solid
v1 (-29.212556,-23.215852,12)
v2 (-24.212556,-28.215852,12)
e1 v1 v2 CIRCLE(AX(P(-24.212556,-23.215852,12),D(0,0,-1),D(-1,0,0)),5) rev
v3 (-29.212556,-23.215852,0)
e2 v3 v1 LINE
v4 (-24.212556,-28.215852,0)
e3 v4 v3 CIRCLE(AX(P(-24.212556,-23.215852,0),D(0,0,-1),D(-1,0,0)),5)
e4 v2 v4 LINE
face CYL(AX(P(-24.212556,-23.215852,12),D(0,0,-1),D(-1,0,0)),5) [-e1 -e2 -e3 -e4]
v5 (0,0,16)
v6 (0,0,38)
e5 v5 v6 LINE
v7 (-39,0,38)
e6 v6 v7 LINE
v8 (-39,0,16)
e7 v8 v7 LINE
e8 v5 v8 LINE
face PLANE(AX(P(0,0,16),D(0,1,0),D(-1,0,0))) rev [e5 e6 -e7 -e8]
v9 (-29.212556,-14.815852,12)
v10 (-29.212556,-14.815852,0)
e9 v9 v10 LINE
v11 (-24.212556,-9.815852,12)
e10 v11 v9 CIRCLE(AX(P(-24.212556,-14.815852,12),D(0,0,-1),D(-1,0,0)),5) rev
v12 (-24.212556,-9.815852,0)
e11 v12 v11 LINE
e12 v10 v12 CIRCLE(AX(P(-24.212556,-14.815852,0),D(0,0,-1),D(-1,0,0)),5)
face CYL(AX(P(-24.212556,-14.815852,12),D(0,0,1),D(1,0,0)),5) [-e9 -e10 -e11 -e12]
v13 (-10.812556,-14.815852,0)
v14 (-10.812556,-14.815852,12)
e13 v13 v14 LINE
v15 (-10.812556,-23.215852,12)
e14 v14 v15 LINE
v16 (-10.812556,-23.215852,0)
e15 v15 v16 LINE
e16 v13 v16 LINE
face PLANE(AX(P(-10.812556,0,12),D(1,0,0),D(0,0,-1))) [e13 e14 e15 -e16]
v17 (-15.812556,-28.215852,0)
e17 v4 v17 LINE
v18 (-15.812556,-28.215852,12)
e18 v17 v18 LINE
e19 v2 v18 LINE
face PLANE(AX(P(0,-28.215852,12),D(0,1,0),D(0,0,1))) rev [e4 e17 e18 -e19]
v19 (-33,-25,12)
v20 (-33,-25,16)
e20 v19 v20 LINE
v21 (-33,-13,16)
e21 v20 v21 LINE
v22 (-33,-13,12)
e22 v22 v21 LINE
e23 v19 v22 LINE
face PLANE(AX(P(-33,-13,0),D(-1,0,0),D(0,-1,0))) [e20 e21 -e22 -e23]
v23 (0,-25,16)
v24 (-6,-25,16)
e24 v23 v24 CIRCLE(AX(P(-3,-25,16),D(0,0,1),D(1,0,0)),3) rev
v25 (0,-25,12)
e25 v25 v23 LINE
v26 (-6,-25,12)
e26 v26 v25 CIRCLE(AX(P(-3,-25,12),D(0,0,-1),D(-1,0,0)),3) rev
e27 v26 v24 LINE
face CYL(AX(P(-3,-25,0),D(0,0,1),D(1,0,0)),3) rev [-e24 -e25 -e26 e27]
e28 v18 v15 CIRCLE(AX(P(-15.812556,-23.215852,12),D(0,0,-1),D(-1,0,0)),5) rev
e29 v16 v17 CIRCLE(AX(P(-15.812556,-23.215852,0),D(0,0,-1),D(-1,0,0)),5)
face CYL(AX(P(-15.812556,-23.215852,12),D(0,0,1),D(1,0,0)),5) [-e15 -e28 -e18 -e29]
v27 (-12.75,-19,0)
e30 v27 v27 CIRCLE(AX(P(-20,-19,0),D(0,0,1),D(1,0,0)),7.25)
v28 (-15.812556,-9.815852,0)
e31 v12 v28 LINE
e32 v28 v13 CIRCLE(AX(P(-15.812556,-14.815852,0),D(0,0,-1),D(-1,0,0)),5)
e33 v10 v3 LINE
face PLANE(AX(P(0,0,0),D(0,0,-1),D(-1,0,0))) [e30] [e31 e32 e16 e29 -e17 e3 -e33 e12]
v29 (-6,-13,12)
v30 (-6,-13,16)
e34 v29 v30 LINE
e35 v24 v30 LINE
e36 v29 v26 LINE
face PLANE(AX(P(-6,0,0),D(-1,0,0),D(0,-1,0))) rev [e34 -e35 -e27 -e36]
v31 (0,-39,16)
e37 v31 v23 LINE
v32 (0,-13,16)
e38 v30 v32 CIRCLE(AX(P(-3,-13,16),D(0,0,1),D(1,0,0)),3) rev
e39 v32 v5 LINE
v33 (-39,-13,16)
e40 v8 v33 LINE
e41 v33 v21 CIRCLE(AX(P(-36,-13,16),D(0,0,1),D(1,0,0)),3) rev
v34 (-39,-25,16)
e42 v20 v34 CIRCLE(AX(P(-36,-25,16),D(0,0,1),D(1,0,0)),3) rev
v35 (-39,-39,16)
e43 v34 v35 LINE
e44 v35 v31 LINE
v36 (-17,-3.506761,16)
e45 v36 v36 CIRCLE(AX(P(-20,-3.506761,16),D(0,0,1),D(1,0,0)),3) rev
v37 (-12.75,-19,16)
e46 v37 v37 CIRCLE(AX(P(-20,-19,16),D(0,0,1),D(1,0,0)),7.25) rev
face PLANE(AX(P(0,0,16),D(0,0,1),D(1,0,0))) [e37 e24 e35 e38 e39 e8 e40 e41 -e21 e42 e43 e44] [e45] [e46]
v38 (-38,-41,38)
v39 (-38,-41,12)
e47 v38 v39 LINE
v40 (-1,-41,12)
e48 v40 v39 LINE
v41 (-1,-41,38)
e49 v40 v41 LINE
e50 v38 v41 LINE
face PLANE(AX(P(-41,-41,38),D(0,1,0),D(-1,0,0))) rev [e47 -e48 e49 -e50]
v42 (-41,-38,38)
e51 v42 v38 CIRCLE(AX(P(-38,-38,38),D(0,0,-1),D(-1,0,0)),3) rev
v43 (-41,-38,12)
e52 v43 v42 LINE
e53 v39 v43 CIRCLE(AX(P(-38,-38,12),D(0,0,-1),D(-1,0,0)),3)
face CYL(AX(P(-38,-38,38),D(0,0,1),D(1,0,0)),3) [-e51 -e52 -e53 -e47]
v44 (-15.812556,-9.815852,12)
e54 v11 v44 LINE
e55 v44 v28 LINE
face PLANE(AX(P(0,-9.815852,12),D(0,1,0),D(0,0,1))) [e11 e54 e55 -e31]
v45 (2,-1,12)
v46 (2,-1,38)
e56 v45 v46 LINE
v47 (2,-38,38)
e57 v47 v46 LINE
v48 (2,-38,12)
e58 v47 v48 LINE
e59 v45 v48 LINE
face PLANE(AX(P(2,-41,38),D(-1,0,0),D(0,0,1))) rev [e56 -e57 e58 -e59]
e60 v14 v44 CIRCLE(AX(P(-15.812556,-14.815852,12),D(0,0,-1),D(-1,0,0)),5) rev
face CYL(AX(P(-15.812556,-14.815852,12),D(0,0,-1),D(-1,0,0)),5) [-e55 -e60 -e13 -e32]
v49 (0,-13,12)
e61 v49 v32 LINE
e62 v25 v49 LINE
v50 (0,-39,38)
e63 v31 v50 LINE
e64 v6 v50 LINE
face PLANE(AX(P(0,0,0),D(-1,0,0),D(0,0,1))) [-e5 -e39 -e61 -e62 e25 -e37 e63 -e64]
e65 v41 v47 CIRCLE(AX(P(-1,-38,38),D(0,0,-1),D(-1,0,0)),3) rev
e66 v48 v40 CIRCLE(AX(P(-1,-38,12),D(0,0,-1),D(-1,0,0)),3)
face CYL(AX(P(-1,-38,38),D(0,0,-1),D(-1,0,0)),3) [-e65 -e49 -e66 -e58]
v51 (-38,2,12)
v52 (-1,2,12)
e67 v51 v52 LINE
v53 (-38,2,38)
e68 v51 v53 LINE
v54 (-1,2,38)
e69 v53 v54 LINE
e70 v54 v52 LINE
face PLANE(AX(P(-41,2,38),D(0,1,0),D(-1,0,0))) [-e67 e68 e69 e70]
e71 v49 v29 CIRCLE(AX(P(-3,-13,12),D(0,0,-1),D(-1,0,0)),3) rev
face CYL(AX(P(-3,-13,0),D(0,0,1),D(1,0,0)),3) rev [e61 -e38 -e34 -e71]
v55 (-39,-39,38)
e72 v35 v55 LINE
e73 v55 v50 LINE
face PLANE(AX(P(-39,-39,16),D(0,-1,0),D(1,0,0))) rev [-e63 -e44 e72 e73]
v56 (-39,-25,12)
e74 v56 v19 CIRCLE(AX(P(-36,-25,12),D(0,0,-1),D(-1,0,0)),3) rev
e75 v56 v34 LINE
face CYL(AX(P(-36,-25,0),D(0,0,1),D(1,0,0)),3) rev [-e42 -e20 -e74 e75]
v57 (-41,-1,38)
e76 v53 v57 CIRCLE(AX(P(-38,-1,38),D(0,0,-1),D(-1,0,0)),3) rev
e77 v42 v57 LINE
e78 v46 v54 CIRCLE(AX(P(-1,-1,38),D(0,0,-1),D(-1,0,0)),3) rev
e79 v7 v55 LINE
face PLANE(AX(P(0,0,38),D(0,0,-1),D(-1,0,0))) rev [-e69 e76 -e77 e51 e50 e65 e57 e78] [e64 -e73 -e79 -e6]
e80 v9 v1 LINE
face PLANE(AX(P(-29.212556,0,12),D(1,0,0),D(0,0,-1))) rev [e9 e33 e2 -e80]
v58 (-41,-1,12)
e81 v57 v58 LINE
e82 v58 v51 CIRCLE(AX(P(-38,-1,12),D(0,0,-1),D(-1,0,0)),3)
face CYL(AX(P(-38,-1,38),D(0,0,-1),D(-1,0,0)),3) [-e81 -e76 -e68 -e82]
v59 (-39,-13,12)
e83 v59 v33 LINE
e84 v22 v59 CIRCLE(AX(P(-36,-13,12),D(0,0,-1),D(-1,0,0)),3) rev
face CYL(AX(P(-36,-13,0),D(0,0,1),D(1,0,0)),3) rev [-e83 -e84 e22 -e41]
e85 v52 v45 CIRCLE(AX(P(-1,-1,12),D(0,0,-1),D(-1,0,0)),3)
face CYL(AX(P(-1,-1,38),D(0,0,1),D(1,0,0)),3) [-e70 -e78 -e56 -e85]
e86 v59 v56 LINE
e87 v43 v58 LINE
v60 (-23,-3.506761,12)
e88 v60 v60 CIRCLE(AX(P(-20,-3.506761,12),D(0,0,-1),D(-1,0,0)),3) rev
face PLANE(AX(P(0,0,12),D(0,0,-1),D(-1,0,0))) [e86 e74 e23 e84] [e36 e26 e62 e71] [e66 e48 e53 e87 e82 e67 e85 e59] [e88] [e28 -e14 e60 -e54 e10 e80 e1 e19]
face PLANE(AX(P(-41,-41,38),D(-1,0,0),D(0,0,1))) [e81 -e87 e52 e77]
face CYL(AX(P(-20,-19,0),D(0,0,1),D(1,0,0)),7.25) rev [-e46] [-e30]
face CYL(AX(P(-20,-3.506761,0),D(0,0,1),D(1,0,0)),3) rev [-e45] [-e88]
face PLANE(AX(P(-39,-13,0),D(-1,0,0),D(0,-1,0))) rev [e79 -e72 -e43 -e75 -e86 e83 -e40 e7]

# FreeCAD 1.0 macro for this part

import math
import FreeCAD as App
import Part
import Sketcher
Q = App.Units.Quantity


def edges_at(feature, points):
    """Names of the edges that pass closest to the given points."""
    edges = feature.Shape.Edges
    near = lambda p: min(range(len(edges)), key=lambda i: edges[i].distToShape(Part.Vertex(*p))[0])
    return sorted({f"Edge{near(p) + 1}" for p in points})

doc = App.newDocument("Part")
body = doc.addObject("PartDesign::Body", "Body")

# Sketch on XY plane
sketch1 = doc.addObject("Sketcher::SketchObject", "Sketch")
body.addObject(sketch1)
sketch1.AttachmentSupport = (doc.XY_Plane, [""])
sketch1.MapMode = "FlatFace"
sketch1.addGeometry(Part.LineSegment(App.Vector(-41, -41, 0), App.Vector(2, -41, 0)), False)
sketch1.addGeometry(Part.LineSegment(App.Vector(2, -41, 0), App.Vector(2, 2, 0)), False)
sketch1.addGeometry(Part.LineSegment(App.Vector(2, 2, 0), App.Vector(-41, 2, 0)), False)
sketch1.addGeometry(Part.LineSegment(App.Vector(-41, 2, 0), App.Vector(-41, -41, 0)), False)
sketch1.addConstraint(Sketcher.Constraint("Coincident", 0, 2, 1, 1))
sketch1.addConstraint(Sketcher.Constraint("Coincident", 1, 2, 2, 1))
sketch1.addConstraint(Sketcher.Constraint("Coincident", 2, 2, 3, 1))
sketch1.addConstraint(Sketcher.Constraint("Coincident", 3, 2, 0, 1))
sketch1.addConstraint(Sketcher.Constraint("Horizontal", 0))
sketch1.addConstraint(Sketcher.Constraint("Vertical", 1))
sketch1.addConstraint(Sketcher.Constraint("Horizontal", 2))
sketch1.addConstraint(Sketcher.Constraint("Vertical", 3))
sketch1.addConstraint(Sketcher.Constraint("Equal", 2, 1))
sketch1.addConstraint(Sketcher.Constraint("DistanceX", 0, 1, 0, 2, Q("43 mm")))
sketch1.addConstraint(Sketcher.Constraint("DistanceX", -1, 1, 0, 2, Q("2 mm")))
sketch1.addConstraint(Sketcher.Constraint("DistanceY", 0, 2, -1, 1, Q("41 mm")))
pad1 = doc.addObject("PartDesign::Pad", "Pad")
body.addObject(pad1)
pad1.Profile = sketch1
pad1.Length = 38

# Sketch on XY plane
sketch2 = doc.addObject("Sketcher::SketchObject", "Sketch001")
body.addObject(sketch2)
sketch2.AttachmentSupport = (doc.XY_Plane, [""])
sketch2.MapMode = "FlatFace"
sketch2.AttachmentOffset = App.Placement(App.Vector(0, 0, 38), App.Rotation())
sketch2.addGeometry(Part.Circle(App.Vector(-20, -3.506761, 0), App.Vector(0, 0, 1), 3), False)
sketch2.addGeometry(Part.Circle(App.Vector(-20, -19, 0), App.Vector(0, 0, 1), 7.25), False)
sketch2.addGeometry(Part.LineSegment(App.Vector(-6, -13, 0), App.Vector(-6, -25, 0)), False)
sketch2.addGeometry(Part.ArcOfCircle(Part.Circle(App.Vector(-3, -25, 0), App.Vector(0, 0, 1), 3), math.radians(180), math.radians(360)), False)
sketch2.addGeometry(Part.LineSegment(App.Vector(0, -25, 0), App.Vector(0, -13, 0)), False)
sketch2.addGeometry(Part.ArcOfCircle(Part.Circle(App.Vector(-3, -13, 0), App.Vector(0, 0, 1), 3), math.radians(0), math.radians(180)), False)
sketch2.addGeometry(Part.LineSegment(App.Vector(-33, -25, 0), App.Vector(-33, -13, 0)), False)
sketch2.addGeometry(Part.ArcOfCircle(Part.Circle(App.Vector(-36, -13, 0), App.Vector(0, 0, 1), 3), math.radians(0), math.radians(180)), False)
sketch2.addGeometry(Part.LineSegment(App.Vector(-39, -13, 0), App.Vector(-39, -25, 0)), False)
sketch2.addGeometry(Part.ArcOfCircle(Part.Circle(App.Vector(-36, -25, 0), App.Vector(0, 0, 1), 3), math.radians(180), math.radians(360)), False)
sketch2.addConstraint(Sketcher.Constraint("Tangent", 2, 2, 3, 1))
sketch2.addConstraint(Sketcher.Constraint("Tangent", 3, 2, 4, 1))
sketch2.addConstraint(Sketcher.Constraint("Tangent", 4, 2, 5, 1))
sketch2.addConstraint(Sketcher.Constraint("Tangent", 5, 2, 2, 1))
sketch2.addConstraint(Sketcher.Constraint("Tangent", 6, 2, 7, 1))
sketch2.addConstraint(Sketcher.Constraint("Tangent", 7, 2, 8, 1))
sketch2.addConstraint(Sketcher.Constraint("Tangent", 8, 2, 9, 1))
sketch2.addConstraint(Sketcher.Constraint("Tangent", 9, 2, 6, 1))
sketch2.addConstraint(Sketcher.Constraint("Vertical", 2))
sketch2.addConstraint(Sketcher.Constraint("Vertical", 4))
sketch2.addConstraint(Sketcher.Constraint("Vertical", 6))
sketch2.addConstraint(Sketcher.Constraint("Vertical", 8))
sketch2.addConstraint(Sketcher.Constraint("Equal", 0, 3))
sketch2.addConstraint(Sketcher.Constraint("Equal", 5, 7))
sketch2.addConstraint(Sketcher.Constraint("PointOnObject", 3, 2, -2))
sketch2.addConstraint(Sketcher.Constraint("Horizontal", 5, 3, 7, 3))
sketch2.addConstraint(Sketcher.Constraint("Horizontal", 3, 3, 9, 3))
sketch2.addConstraint(Sketcher.Constraint("Vertical", 0, 3, 1, 3))
sketch2.addConstraint(Sketcher.Constraint("Diameter", 0, Q("6 mm")))
sketch2.addConstraint(Sketcher.Constraint("Diameter", 1, Q("14.5 mm")))
sketch2.addConstraint(Sketcher.Constraint("DistanceY", 2, 2, 2, 1, Q("12 mm")))
sketch2.addConstraint(Sketcher.Constraint("DistanceX", 0, 3, -1, 1, Q("20 mm")))
sketch2.addConstraint(Sketcher.Constraint("DistanceY", 1, 3, -1, 1, Q("19 mm")))
sketch2.addConstraint(Sketcher.Constraint("DistanceY", 3, 3, -1, 1, Q("25 mm")))
sketch2.addConstraint(Sketcher.Constraint("DistanceX", 7, 3, -1, 1, Q("36 mm")))
sketch2.addConstraint(Sketcher.Constraint("DistanceY", 0, 3, -1, 1, Q("3.506761 mm")))
pocket1 = doc.addObject("PartDesign::Pocket", "Pocket")
body.addObject(pocket1)
pocket1.Profile = sketch2
pocket1.Length = 38

# Sketch on XY plane
sketch3 = doc.addObject("Sketcher::SketchObject", "Sketch002")
body.addObject(sketch3)
sketch3.AttachmentSupport = (doc.XY_Plane, [""])
sketch3.MapMode = "FlatFace"
sketch3.AttachmentOffset = App.Placement(App.Vector(0, 0, 38), App.Rotation())
sketch3.addGeometry(Part.LineSegment(App.Vector(-39, 0, 0), App.Vector(-39, -39, 0)), False)
sketch3.addGeometry(Part.LineSegment(App.Vector(-39, -39, 0), App.Vector(0, -39, 0)), False)
sketch3.addGeometry(Part.LineSegment(App.Vector(0, -39, 0), App.Vector(0, 0, 0)), False)
sketch3.addGeometry(Part.LineSegment(App.Vector(0, 0, 0), App.Vector(-39, 0, 0)), False)
sketch3.addConstraint(Sketcher.Constraint("Coincident", 0, 2, 1, 1))
sketch3.addConstraint(Sketcher.Constraint("Coincident", 1, 2, 2, 1))
sketch3.addConstraint(Sketcher.Constraint("Coincident", 2, 2, 3, 1))
sketch3.addConstraint(Sketcher.Constraint("Coincident", 3, 2, 0, 1))
sketch3.addConstraint(Sketcher.Constraint("Vertical", 0))
sketch3.addConstraint(Sketcher.Constraint("Horizontal", 1))
sketch3.addConstraint(Sketcher.Constraint("Vertical", 2))
sketch3.addConstraint(Sketcher.Constraint("Horizontal", 3))
sketch3.addConstraint(Sketcher.Constraint("Coincident", 2, 2, -1, 1))
sketch3.addConstraint(Sketcher.Constraint("Equal", 3, 0))
sketch3.addConstraint(Sketcher.Constraint("DistanceX", 1, 1, 1, 2, Q("39 mm")))
pocket2 = doc.addObject("PartDesign::Pocket", "Pocket001")
body.addObject(pocket2)
pocket2.Profile = sketch3
pocket2.Length = 22

# Sketch on XY plane
sketch4 = doc.addObject("Sketcher::SketchObject", "Sketch003")
body.addObject(sketch4)
sketch4.AttachmentSupport = (doc.XY_Plane, [""])
sketch4.MapMode = "FlatFace"
sketch4.AttachmentOffset = App.Placement(App.Vector(0, 0, 12), App.Rotation())
sketch4.addGeometry(Part.LineSegment(App.Vector(-41, -41, 0), App.Vector(-41, 2, 0)), False)
sketch4.addGeometry(Part.LineSegment(App.Vector(-41, 2, 0), App.Vector(2, 2, 0)), False)
sketch4.addGeometry(Part.LineSegment(App.Vector(2, 2, 0), App.Vector(2, -41, 0)), False)
sketch4.addGeometry(Part.LineSegment(App.Vector(2, -41, 0), App.Vector(-41, -41, 0)), False)
sketch4.addGeometry(Part.Circle(App.Vector(-20, -3.506761, 0), App.Vector(0, 0, 1), 3), False)
sketch4.addGeometry(Part.ArcOfCircle(Part.Circle(App.Vector(-36, -25, 0), App.Vector(0, 0, 1), 3), math.radians(180), math.radians(360)), False)
sketch4.addGeometry(Part.LineSegment(App.Vector(-33, -25, 0), App.Vector(-33, -13, 0)), False)
sketch4.addGeometry(Part.ArcOfCircle(Part.Circle(App.Vector(-36, -13, 0), App.Vector(0, 0, 1), 3), math.radians(0), math.radians(180)), False)
sketch4.addGeometry(Part.LineSegment(App.Vector(-39, -13, 0), App.Vector(-39, -25, 0)), False)
sketch4.addGeometry(Part.LineSegment(App.Vector(-10.812556, -9.815852, 0), App.Vector(-29.212556, -9.815852, 0)), False)
sketch4.addGeometry(Part.LineSegment(App.Vector(-29.212556, -9.815852, 0), App.Vector(-29.212556, -28.215852, 0)), False)
sketch4.addGeometry(Part.LineSegment(App.Vector(-29.212556, -28.215852, 0), App.Vector(-10.812556, -28.215852, 0)), False)
sketch4.addGeometry(Part.LineSegment(App.Vector(-10.812556, -28.215852, 0), App.Vector(-10.812556, -9.815852, 0)), False)
sketch4.addGeometry(Part.LineSegment(App.Vector(0, -25, 0), App.Vector(0, -13, 0)), False)
sketch4.addGeometry(Part.ArcOfCircle(Part.Circle(App.Vector(-3, -13, 0), App.Vector(0, 0, 1), 3), math.radians(0), math.radians(180)), False)
sketch4.addGeometry(Part.LineSegment(App.Vector(-6, -13, 0), App.Vector(-6, -25, 0)), False)
sketch4.addGeometry(Part.ArcOfCircle(Part.Circle(App.Vector(-3, -25, 0), App.Vector(0, 0, 1), 3), math.radians(180), math.radians(360)), False)
sketch4.addConstraint(Sketcher.Constraint("Coincident", 0, 2, 1, 1))
sketch4.addConstraint(Sketcher.Constraint("Coincident", 1, 2, 2, 1))
sketch4.addConstraint(Sketcher.Constraint("Coincident", 2, 2, 3, 1))
sketch4.addConstraint(Sketcher.Constraint("Coincident", 3, 2, 0, 1))
sketch4.addConstraint(Sketcher.Constraint("Tangent", 5, 2, 6, 1))
sketch4.addConstraint(Sketcher.Constraint("Tangent", 6, 2, 7, 1))
sketch4.addConstraint(Sketcher.Constraint("Tangent", 7, 2, 8, 1))
sketch4.addConstraint(Sketcher.Constraint("Tangent", 8, 2, 5, 1))
sketch4.addConstraint(Sketcher.Constraint("Coincident", 9, 2, 10, 1))
sketch4.addConstraint(Sketcher.Constraint("Coincident", 10, 2, 11, 1))
sketch4.addConstraint(Sketcher.Constraint("Coincident", 11, 2, 12, 1))
sketch4.addConstraint(Sketcher.Constraint("Coincident", 12, 2, 9, 1))
sketch4.addConstraint(Sketcher.Constraint("Tangent", 13, 2, 14, 1))
sketch4.addConstraint(Sketcher.Constraint("Tangent", 14, 2, 15, 1))
sketch4.addConstraint(Sketcher.Constraint("Tangent", 15, 2, 16, 1))
sketch4.addConstraint(Sketcher.Constraint("Tangent", 16, 2, 13, 1))
sketch4.addConstraint(Sketcher.Constraint("Vertical", 0))
sketch4.addConstraint(Sketcher.Constraint("Horizontal", 1))
sketch4.addConstraint(Sketcher.Constraint("Vertical", 2))
sketch4.addConstraint(Sketcher.Constraint("Horizontal", 3))
sketch4.addConstraint(Sketcher.Constraint("Vertical", 6))
sketch4.addConstraint(Sketcher.Constraint("Vertical", 8))
sketch4.addConstraint(Sketcher.Constraint("Horizontal", 9))
sketch4.addConstraint(Sketcher.Constraint("Vertical", 10))
sketch4.addConstraint(Sketcher.Constraint("Horizontal", 11))
sketch4.addConstraint(Sketcher.Constraint("Vertical", 12))
sketch4.addConstraint(Sketcher.Constraint("Vertical", 13))
sketch4.addConstraint(Sketcher.Constraint("Vertical", 15))
sketch4.addConstraint(Sketcher.Constraint("Equal", 4, 5))
sketch4.addConstraint(Sketcher.Constraint("Equal", 7, 14))
sketch4.addConstraint(Sketcher.Constraint("PointOnObject", 13, 2, -2))
sketch4.addConstraint(Sketcher.Constraint("Horizontal", 7, 3, 14, 3))
sketch4.addConstraint(Sketcher.Constraint("Horizontal", 5, 3, 16, 3))
sketch4.addConstraint(Sketcher.Constraint("Equal", 3, 0))
sketch4.addConstraint(Sketcher.Constraint("Equal", 11, 10))
sketch4.addConstraint(Sketcher.Constraint("Diameter", 4, Q("6 mm")))
sketch4.addConstraint(Sketcher.Constraint("DistanceX", 1, 1, 1, 2, Q("43 mm")))
sketch4.addConstraint(Sketcher.Constraint("DistanceY", 6, 1, 6, 2, Q("12 mm")))
sketch4.addConstraint(Sketcher.Constraint("DistanceX", 9, 2, 9, 1, Q("18.4 mm")))
sketch4.addConstraint(Sketcher.Constraint("DistanceX", 4, 3, -1, 1, Q("20 mm")))
sketch4.addConstraint(Sketcher.Constraint("DistanceX", 5, 3, -1, 1, Q("36 mm")))
sketch4.addConstraint(Sketcher.Constraint("DistanceY", 5, 3, -1, 1, Q("25 mm")))
sketch4.addConstraint(Sketcher.Constraint("DistanceX", 0, 2, -1, 1, Q("41 mm")))
sketch4.addConstraint(Sketcher.Constraint("DistanceY", -1, 1, 0, 2, Q("2 mm")))
sketch4.addConstraint(Sketcher.Constraint("DistanceY", 4, 3, -1, 1, Q("3.506761 mm")))
sketch4.addConstraint(Sketcher.Constraint("DistanceY", 9, 2, 4, 3, Q("6.309091 mm")))
sketch4.addConstraint(Sketcher.Constraint("DistanceX", 9, 2, -1, 1, Q("29.212556 mm")))
pocket3 = doc.addObject("PartDesign::Pocket", "Pocket002")
body.addObject(pocket3)
pocket3.Profile = sketch4
pocket3.Length = 12
doc.recompute()

fillet = doc.addObject("PartDesign::Fillet", "Fillet")
body.addObject(fillet)
fillet.Base = (pocket3, edges_at(pocket3, [
    (-10.813, -9.816, 6),
    (-10.813, -28.216, 6),
    (-29.213, -28.216, 6),
    (-29.213, -9.816, 6),
]))
fillet.Radius = 5
doc.recompute()

fillet2 = doc.addObject("PartDesign::Fillet", "Fillet001")
body.addObject(fillet2)
fillet2.Base = (fillet, edges_at(fillet, [
    (-41, -41, 25),
    (2, -41, 25),
    (2, 2, 25),
    (-41, 2, 25),
]))
fillet2.Radius = 3

doc.recompute()
